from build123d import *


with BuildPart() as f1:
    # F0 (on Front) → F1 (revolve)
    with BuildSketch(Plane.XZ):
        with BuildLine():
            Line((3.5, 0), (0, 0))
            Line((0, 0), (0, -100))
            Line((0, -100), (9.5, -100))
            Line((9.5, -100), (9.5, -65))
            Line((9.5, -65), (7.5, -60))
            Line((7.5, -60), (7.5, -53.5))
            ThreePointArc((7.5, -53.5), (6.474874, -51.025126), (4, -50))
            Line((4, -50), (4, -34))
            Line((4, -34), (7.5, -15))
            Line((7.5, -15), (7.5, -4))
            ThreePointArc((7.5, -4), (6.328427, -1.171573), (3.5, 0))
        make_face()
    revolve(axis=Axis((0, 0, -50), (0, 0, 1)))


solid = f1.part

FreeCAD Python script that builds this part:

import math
import FreeCAD as App
import Part
import Sketcher

V = App.Vector
Q = App.Units.Quantity

doc = App.newDocument("Part")
body = doc.addObject("PartDesign::Body", "Body")

# Sketch on XZ plane
sketch1 = doc.addObject("Sketcher::SketchObject", "Sketch")
body.addObject(sketch1)
sketch1.AttachmentSupport = (doc.XZ_Plane, [""])
sketch1.MapMode = "FlatFace"
sketch1.addGeometry([
    Part.LineSegment(V(3.5, 0, 0), V(0, 0, 0)),  # 0
    Part.LineSegment(V(0, 0, 0), V(0, -100, 0)),  # 1
    Part.LineSegment(V(0, -100, 0), V(9.5, -100, 0)),  # 2
    Part.LineSegment(V(9.5, -100, 0), V(9.5, -65, 0)),  # 3
    Part.LineSegment(V(9.5, -65, 0), V(7.5, -60, 0)),  # 4
    Part.LineSegment(V(7.5, -60, 0), V(7.5, -53.5, 0)),  # 5
    Part.ArcOfCircle(Part.Circle(V(4, -53.5, 0), V(0, 0, 1), 3.5), math.radians(0), math.radians(90)),  # 6
    Part.LineSegment(V(4, -50, 0), V(4, -34, 0)),  # 7
    Part.LineSegment(V(4, -34, 0), V(7.5, -15, 0)),  # 8
    Part.LineSegment(V(7.5, -15, 0), V(7.5, -4, 0)),  # 9
    Part.ArcOfCircle(Part.Circle(V(3.5, -4, 0), V(0, 0, 1), 4), math.radians(0), math.radians(90)),  # 10
], False)
sketch1.addConstraint([
    Sketcher.Constraint("Coincident", 0, 2, 1, 1),
    Sketcher.Constraint("Coincident", 1, 2, 2, 1),
    Sketcher.Constraint("Coincident", 2, 2, 3, 1),
    Sketcher.Constraint("Coincident", 3, 2, 4, 1),
    Sketcher.Constraint("Coincident", 4, 2, 5, 1),
    Sketcher.Constraint("Tangent", 5, 2, 6, 1),
    Sketcher.Constraint("Coincident", 6, 2, 7, 1),
    Sketcher.Constraint("Coincident", 7, 2, 8, 1),
    Sketcher.Constraint("Coincident", 8, 2, 9, 1),
    Sketcher.Constraint("Tangent", 9, 2, 10, 1),
    Sketcher.Constraint("Tangent", 10, 2, 0, 1),
    Sketcher.Constraint("Horizontal", 0),
    Sketcher.Constraint("Vertical", 1),
    Sketcher.Constraint("Horizontal", 2),
    Sketcher.Constraint("Vertical", 3),
    Sketcher.Constraint("Vertical", 5),
    Sketcher.Constraint("Vertical", 7),
    Sketcher.Constraint("Vertical", 9),
    Sketcher.Constraint("Coincident", 0, 2, -1, 1),
    Sketcher.Constraint("Vertical", 5, 2, 8, 2),
    Sketcher.Constraint("Radius", 10, Q("4 mm")),
    Sketcher.Constraint("Radius", 6, Q("3.499999 mm")),
    Sketcher.Constraint("DistanceY", 1, 2, 1, 1, Q("100 mm")),
    Sketcher.Constraint("DistanceY", 3, 1, 3, 2, Q("35 mm")),
    Sketcher.Constraint("DistanceY", 7, 1, 7, 2, Q("16 mm")),
    Sketcher.Constraint("DistanceY", 9, 1, 9, 2, Q("11 mm")),
    Sketcher.Constraint("DistanceX", 0, 2, 0, 1, Q("3.5 mm")),
    Sketcher.Constraint("DistanceX", 2, 1, 2, 2, Q("9.5 mm")),
    Sketcher.Constraint("DistanceY", 5, 1, 5, 2, Q("6.5 mm")),
    Sketcher.Constraint("DistanceY", 4, 2, -1, 1, Q("60 mm")),
    Sketcher.Constraint("DistanceX", -1, 1, 6, 2, Q("4 mm")),
])
revolution = doc.addObject("PartDesign::Revolution", "Revolution")
body.addObject(revolution)
revolution.Profile = sketch1
revolution.ReferenceAxis = (sketch1, ["V_Axis"])
revolution.Angle = 360

doc.recompute()
